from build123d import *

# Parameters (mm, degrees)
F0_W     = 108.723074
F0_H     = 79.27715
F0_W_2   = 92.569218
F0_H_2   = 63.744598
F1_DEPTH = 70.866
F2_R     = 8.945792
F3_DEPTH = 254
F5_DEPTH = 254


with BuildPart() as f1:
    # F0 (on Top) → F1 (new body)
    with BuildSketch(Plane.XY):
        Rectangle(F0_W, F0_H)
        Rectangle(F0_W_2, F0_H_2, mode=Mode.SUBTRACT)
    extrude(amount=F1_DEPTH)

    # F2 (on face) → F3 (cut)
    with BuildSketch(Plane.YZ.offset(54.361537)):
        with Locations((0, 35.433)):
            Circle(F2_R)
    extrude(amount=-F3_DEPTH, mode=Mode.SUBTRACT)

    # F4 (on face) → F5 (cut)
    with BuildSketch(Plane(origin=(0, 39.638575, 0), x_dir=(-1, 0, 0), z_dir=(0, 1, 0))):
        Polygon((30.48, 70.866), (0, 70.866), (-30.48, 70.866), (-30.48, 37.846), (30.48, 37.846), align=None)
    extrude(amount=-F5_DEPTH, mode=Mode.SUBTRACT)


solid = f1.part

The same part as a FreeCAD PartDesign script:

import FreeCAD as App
import Part
import Sketcher
from FreeCAD import Vector
Q = App.Units.Quantity

doc = App.newDocument("Part")
params = doc.addObject("Spreadsheet::Sheet", "Params")
for row, (alias, value) in enumerate([
    ("pad1_length", "2.79 in"),
    ("pocket1_length", "10 in"),
    ("sketch3_width", "2.4 in"),
    ("sketch3_height", "1.3 in"),
    ("pocket2_length", "10 in"),
], start=1):
    params.set(f"A{row}", alias)
    params.set(f"B{row}", "=" + value)
    params.setAlias(f"B{row}", alias)

body = doc.addObject("PartDesign::Body", "Body")

# Sketch on XY plane
sketch1 = body.newObject("Sketcher::SketchObject", "Sketch")
sketch1.AttachmentSupport = (doc.getObject("XY_Plane"), [""])
sketch1.MapMode = "FlatFace"
sketch1.addGeometry(Part.LineSegment(Vector(-54, 40, 0), Vector(-54, -40, 0)), False)
sketch1.addGeometry(Part.LineSegment(Vector(-54, -40, 0), Vector(54, -40, 0)), False)
sketch1.addGeometry(Part.LineSegment(Vector(54, -40, 0), Vector(54, 40, 0)), False)
sketch1.addGeometry(Part.LineSegment(Vector(54, 40, 0), Vector(-54, 40, 0)), False)
sketch1.addGeometry(Part.LineSegment(Vector(46, -32, 0), Vector(-46, -32, 0)), False)
sketch1.addGeometry(Part.LineSegment(Vector(-46, -32, 0), Vector(-46, 32, 0)), False)
sketch1.addGeometry(Part.LineSegment(Vector(-46, 32, 0), Vector(46, 32, 0)), False)
sketch1.addGeometry(Part.LineSegment(Vector(46, 32, 0), Vector(46, -32, 0)), False)
sketch1.addConstraint(Sketcher.Constraint("Coincident", 0, 2, 1, 1))
sketch1.addConstraint(Sketcher.Constraint("Coincident", 1, 2, 2, 1))
sketch1.addConstraint(Sketcher.Constraint("Coincident", 2, 2, 3, 1))
sketch1.addConstraint(Sketcher.Constraint("Coincident", 3, 2, 0, 1))
sketch1.addConstraint(Sketcher.Constraint("Coincident", 4, 2, 5, 1))
sketch1.addConstraint(Sketcher.Constraint("Coincident", 5, 2, 6, 1))
sketch1.addConstraint(Sketcher.Constraint("Coincident", 6, 2, 7, 1))
sketch1.addConstraint(Sketcher.Constraint("Coincident", 7, 2, 4, 1))
sketch1.addConstraint(Sketcher.Constraint("Vertical", 0))
sketch1.addConstraint(Sketcher.Constraint("Horizontal", 1))
sketch1.addConstraint(Sketcher.Constraint("Vertical", 2))
sketch1.addConstraint(Sketcher.Constraint("Horizontal", 3))
sketch1.addConstraint(Sketcher.Constraint("Horizontal", 4))
sketch1.addConstraint(Sketcher.Constraint("Vertical", 5))
sketch1.addConstraint(Sketcher.Constraint("Horizontal", 6))
sketch1.addConstraint(Sketcher.Constraint("Vertical", 7))
sketch1.addConstraint(Sketcher.Constraint("Symmetric", 0, 2, 2, 2, -1, 1))
sketch1.addConstraint(Sketcher.Constraint("Symmetric", 4, 2, 6, 2, -1, 1))
sketch1.addConstraint(Sketcher.Constraint("DistanceY", 5, 1, 5, 2, Q("63.744598 mm")))
sketch1.addConstraint(Sketcher.Constraint("DistanceX", 4, 2, 4, 1, Q("92.569218 mm")))
sketch1.addConstraint(Sketcher.Constraint("DistanceY", 0, 2, 0, 1, Q("79.27715 mm")))
sketch1.addConstraint(Sketcher.Constraint("DistanceX", 1, 1, 1, 2, Q("108.723074 mm")))
pad1 = body.newObject("PartDesign::Pad", "Pad")
pad1.Profile = sketch1
pad1.setExpression("Length", "Params.pad1_length")

# Sketch on YZ plane
sketch2 = body.newObject("Sketcher::SketchObject", "Sketch001")
sketch2.AttachmentSupport = (doc.getObject("YZ_Plane"), [""])
sketch2.MapMode = "FlatFace"
sketch2.AttachmentOffset = App.Placement(Vector(0, 0, 54.361537), App.Rotation())
sketch2.addGeometry(Part.Circle(Vector(0, 35, 0), Vector(0, 0, 1), 9), False)
sketch2.addConstraint(Sketcher.Constraint("PointOnObject", 0, 3, -2))
sketch2.addConstraint(Sketcher.Constraint("DistanceY", -1, 1, 0, 3, Q("1.395 in")))
sketch2.addConstraint(Sketcher.Constraint("Diameter", 0, Q("17.891584 mm")))
pocket1 = body.newObject("PartDesign::Pocket", "Pocket")
pocket1.Profile = sketch2
pocket1.setExpression("Length", "Params.pocket1_length")

# Sketch on XZ plane
sketch3 = body.newObject("Sketcher::SketchObject", "Sketch002")
sketch3.AttachmentSupport = (doc.getObject("XZ_Plane"), [""])
sketch3.MapMode = "FlatFace"
sketch3.AttachmentOffset = App.Placement(Vector(0, 0, -39.638575), App.Rotation())
sketch3.addGeometry(Part.LineSegment(Vector(-30, 71, 0), Vector(30, 71, 0)), False)
sketch3.addGeometry(Part.LineSegment(Vector(30, 71, 0), Vector(30, 38, 0)), False)
sketch3.addGeometry(Part.LineSegment(Vector(30, 38, 0), Vector(-30, 38, 0)), False)
sketch3.addGeometry(Part.LineSegment(Vector(-30, 38, 0), Vector(-30, 71, 0)), False)
sketch3.addConstraint(Sketcher.Constraint("Coincident", 0, 2, 1, 1))
sketch3.addConstraint(Sketcher.Constraint("Coincident", 1, 2, 2, 1))
sketch3.addConstraint(Sketcher.Constraint("Coincident", 2, 2, 3, 1))
sketch3.addConstraint(Sketcher.Constraint("Coincident", 3, 2, 0, 1))
sketch3.addConstraint(Sketcher.Constraint("Horizontal", 0))
sketch3.addConstraint(Sketcher.Constraint("Vertical", 1))
sketch3.addConstraint(Sketcher.Constraint("Horizontal", 2))
sketch3.addConstraint(Sketcher.Constraint("Vertical", 3))
sketch3.addConstraint(Sketcher.Constraint("DistanceX", 0, 1, 0, 2, Q("2.4 in")))
sketch3.addConstraint(Sketcher.Constraint("DistanceY", 1, 2, 1, 1, Q("1.3 in")))
sketch3.addConstraint(Sketcher.Constraint("DistanceX", -1, 1, 0, 2, Q("1.2 in")))
sketch3.addConstraint(Sketcher.Constraint("DistanceY", -1, 1, 0, 2, Q("2.79 in")))
sketch3.setExpression("Constraints[8]", "Params.sketch3_width")
sketch3.setExpression("Constraints[9]", "Params.sketch3_height")
pocket2 = body.newObject("PartDesign::Pocket", "Pocket001")
pocket2.Profile = sketch3
pocket2.setExpression("Length", "Params.pocket2_length")
pocket2.Reversed = True

doc.recompute()
